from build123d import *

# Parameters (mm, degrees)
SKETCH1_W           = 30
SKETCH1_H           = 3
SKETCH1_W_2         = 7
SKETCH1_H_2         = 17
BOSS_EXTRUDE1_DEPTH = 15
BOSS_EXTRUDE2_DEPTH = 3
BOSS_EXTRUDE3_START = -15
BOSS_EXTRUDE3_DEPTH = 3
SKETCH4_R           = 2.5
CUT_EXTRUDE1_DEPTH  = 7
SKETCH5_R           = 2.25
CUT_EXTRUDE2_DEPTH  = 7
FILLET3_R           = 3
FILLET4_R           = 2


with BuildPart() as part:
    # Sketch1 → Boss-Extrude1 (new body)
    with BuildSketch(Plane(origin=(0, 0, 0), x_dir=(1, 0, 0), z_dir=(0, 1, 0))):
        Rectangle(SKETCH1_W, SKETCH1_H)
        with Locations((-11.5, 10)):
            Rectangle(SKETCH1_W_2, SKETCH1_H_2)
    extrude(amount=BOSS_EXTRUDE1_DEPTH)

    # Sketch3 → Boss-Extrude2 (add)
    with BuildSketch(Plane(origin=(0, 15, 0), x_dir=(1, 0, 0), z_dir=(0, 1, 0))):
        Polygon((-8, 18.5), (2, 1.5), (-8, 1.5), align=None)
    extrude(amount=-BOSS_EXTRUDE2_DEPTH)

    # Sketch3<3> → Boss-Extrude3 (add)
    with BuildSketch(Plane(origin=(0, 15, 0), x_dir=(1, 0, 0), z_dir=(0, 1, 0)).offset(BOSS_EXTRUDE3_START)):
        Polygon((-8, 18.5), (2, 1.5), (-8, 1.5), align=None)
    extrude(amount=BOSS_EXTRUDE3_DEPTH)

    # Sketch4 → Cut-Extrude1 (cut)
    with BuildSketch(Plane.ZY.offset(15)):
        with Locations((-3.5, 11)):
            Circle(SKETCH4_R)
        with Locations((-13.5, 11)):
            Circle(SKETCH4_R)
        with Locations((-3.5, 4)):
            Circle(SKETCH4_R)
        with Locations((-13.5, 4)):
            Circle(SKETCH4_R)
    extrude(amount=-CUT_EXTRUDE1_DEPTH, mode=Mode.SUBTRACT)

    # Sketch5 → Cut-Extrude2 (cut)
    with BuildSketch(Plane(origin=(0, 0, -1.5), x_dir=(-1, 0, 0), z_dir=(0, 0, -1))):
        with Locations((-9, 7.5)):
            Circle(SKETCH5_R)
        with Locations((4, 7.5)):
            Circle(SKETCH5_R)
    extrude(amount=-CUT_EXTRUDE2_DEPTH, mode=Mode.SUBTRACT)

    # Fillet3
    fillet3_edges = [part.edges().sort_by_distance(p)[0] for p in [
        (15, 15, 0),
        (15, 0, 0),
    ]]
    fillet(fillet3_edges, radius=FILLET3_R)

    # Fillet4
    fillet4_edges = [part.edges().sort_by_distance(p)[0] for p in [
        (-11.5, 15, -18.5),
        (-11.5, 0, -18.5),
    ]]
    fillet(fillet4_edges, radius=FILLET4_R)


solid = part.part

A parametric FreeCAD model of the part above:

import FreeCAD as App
import Part
import Sketcher
from FreeCAD import Vector
Q = App.Units.Quantity


def edges_at(feature, points):
    """Names of the edges that pass closest to the given points."""
    edges = feature.Shape.Edges
    near = lambda p: min(range(len(edges)), key=lambda i: edges[i].distToShape(Part.Vertex(*p))[0])
    return sorted({f"Edge{near(p) + 1}" for p in points})

doc = App.newDocument("Part")
body = doc.addObject("PartDesign::Body", "Body")

# Sketch on XZ plane
sketch1 = body.newObject("Sketcher::SketchObject", "Sketch")
sketch1.AttachmentSupport = (doc.getObject("XZ_Plane"), [""])
sketch1.MapMode = "FlatFace"
sketch1.addGeometry(Part.LineSegment(Vector(-15, 1.5, 0), Vector(15, 1.5, 0)), False)
sketch1.addGeometry(Part.LineSegment(Vector(15, 1.5, 0), Vector(15, -1.5, 0)), False)
sketch1.addGeometry(Part.LineSegment(Vector(15, -1.5, 0), Vector(-8, -1.5, 0)), False)
sketch1.addGeometry(Part.LineSegment(Vector(-8, -1.5, 0), Vector(-8, -18.5, 0)), False)
sketch1.addGeometry(Part.LineSegment(Vector(-8, -18.5, 0), Vector(-15, -18.5, 0)), False)
sketch1.addGeometry(Part.LineSegment(Vector(-15, -18.5, 0), Vector(-15, 1.5, 0)), False)
sketch1.addConstraint(Sketcher.Constraint("Coincident", 0, 2, 1, 1))
sketch1.addConstraint(Sketcher.Constraint("Coincident", 1, 2, 2, 1))
sketch1.addConstraint(Sketcher.Constraint("Coincident", 2, 2, 3, 1))
sketch1.addConstraint(Sketcher.Constraint("Coincident", 3, 2, 4, 1))
sketch1.addConstraint(Sketcher.Constraint("Coincident", 4, 2, 5, 1))
sketch1.addConstraint(Sketcher.Constraint("Coincident", 5, 2, 0, 1))
sketch1.addConstraint(Sketcher.Constraint("Horizontal", 0))
sketch1.addConstraint(Sketcher.Constraint("Vertical", 1))
sketch1.addConstraint(Sketcher.Constraint("Horizontal", 2))
sketch1.addConstraint(Sketcher.Constraint("Vertical", 3))
sketch1.addConstraint(Sketcher.Constraint("Horizontal", 4))
sketch1.addConstraint(Sketcher.Constraint("Vertical", 5))
sketch1.addConstraint(Sketcher.Constraint("Symmetric", 1, 2, 5, 2, -1, 1))
sketch1.addConstraint(Sketcher.Constraint("DistanceX", 0, 1, 0, 2, Q("30 mm")))
sketch1.addConstraint(Sketcher.Constraint("DistanceX", 2, 2, 2, 1, Q("23 mm")))
sketch1.addConstraint(Sketcher.Constraint("DistanceY", 1, 2, 1, 1, Q("3 mm")))
sketch1.addConstraint(Sketcher.Constraint("DistanceY", 3, 2, 3, 1, Q("17 mm")))
pad1 = body.newObject("PartDesign::Pad", "Pad")
pad1.Profile = sketch1
pad1.Length = 15
pad1.Reversed = True

# Sketch on XZ plane
sketch2 = body.newObject("Sketcher::SketchObject", "Sketch001")
sketch2.AttachmentSupport = (doc.getObject("XZ_Plane"), [""])
sketch2.MapMode = "FlatFace"
sketch2.AttachmentOffset = App.Placement(Vector(0, 0, -15), App.Rotation())
sketch2.addGeometry(Part.LineSegment(Vector(2, -2, 0), Vector(-8, -18, 0)), False)
sketch2.addGeometry(Part.LineSegment(Vector(-8, -18, 0), Vector(-8, -2, 0)), False)
sketch2.addGeometry(Part.LineSegment(Vector(-8, -2, 0), Vector(2, -2, 0)), False)
sketch2.addConstraint(Sketcher.Constraint("Coincident", 0, 2, 1, 1))
sketch2.addConstraint(Sketcher.Constraint("Coincident", 1, 2, 2, 1))
sketch2.addConstraint(Sketcher.Constraint("Coincident", 2, 2, 0, 1))
sketch2.addConstraint(Sketcher.Constraint("Vertical", 1))
sketch2.addConstraint(Sketcher.Constraint("Horizontal", 2))
sketch2.addConstraint(Sketcher.Constraint("DistanceX", 2, 1, 2, 2, Q("10 mm")))
sketch2.addConstraint(Sketcher.Constraint("DistanceY", 1, 1, 1, 2, Q("17 mm")))
sketch2.addConstraint(Sketcher.Constraint("DistanceX", 0, 2, -1, 1, Q("8 mm")))
sketch2.addConstraint(Sketcher.Constraint("DistanceY", 0, 2, -1, 1, Q("18.5 mm")))
pad2 = body.newObject("PartDesign::Pad", "Pad001")
pad2.Profile = sketch2
pad2.Length = 3

# Sketch on XZ plane
sketch3 = body.newObject("Sketcher::SketchObject", "Sketch002")
sketch3.AttachmentSupport = (doc.getObject("XZ_Plane"), [""])
sketch3.MapMode = "FlatFace"
sketch3.addGeometry(Part.LineSegment(Vector(2, -2, 0), Vector(-8, -18, 0)), False)
sketch3.addGeometry(Part.LineSegment(Vector(-8, -18, 0), Vector(-8, -2, 0)), False)
sketch3.addGeometry(Part.LineSegment(Vector(-8, -2, 0), Vector(2, -2, 0)), False)
sketch3.addConstraint(Sketcher.Constraint("Coincident", 0, 2, 1, 1))
sketch3.addConstraint(Sketcher.Constraint("Coincident", 1, 2, 2, 1))
sketch3.addConstraint(Sketcher.Constraint("Coincident", 2, 2, 0, 1))
sketch3.addConstraint(Sketcher.Constraint("Vertical", 1))
sketch3.addConstraint(Sketcher.Constraint("Horizontal", 2))
sketch3.addConstraint(Sketcher.Constraint("DistanceX", 2, 1, 2, 2, Q("10 mm")))
sketch3.addConstraint(Sketcher.Constraint("DistanceY", 1, 1, 1, 2, Q("17 mm")))
sketch3.addConstraint(Sketcher.Constraint("DistanceX", 0, 2, -1, 1, Q("8 mm")))
sketch3.addConstraint(Sketcher.Constraint("DistanceY", 0, 2, -1, 1, Q("18.5 mm")))
pad3 = body.newObject("PartDesign::Pad", "Pad002")
pad3.Profile = sketch3
pad3.Length = 3
pad3.Reversed = True

# Sketch on YZ plane
sketch4 = body.newObject("Sketcher::SketchObject", "Sketch003")
sketch4.AttachmentSupport = (doc.getObject("YZ_Plane"), [""])
sketch4.MapMode = "FlatFace"
sketch4.AttachmentOffset = App.Placement(Vector(0, 0, -15), App.Rotation())
sketch4.addGeometry(Part.Circle(Vector(11, -3.5, 0), Vector(0, 0, 1), 2.5), False)
sketch4.addGeometry(Part.Circle(Vector(11, -13.5, 0), Vector(0, 0, 1), 2.5), False)
sketch4.addGeometry(Part.Circle(Vector(4, -3.5, 0), Vector(0, 0, 1), 2.5), False)
sketch4.addGeometry(Part.Circle(Vector(4, -13.5, 0), Vector(0, 0, 1), 2.5), False)
sketch4.addConstraint(Sketcher.Constraint("Equal", 0, 1))
sketch4.addConstraint(Sketcher.Constraint("Equal", 1, 2))
sketch4.addConstraint(Sketcher.Constraint("Equal", 2, 3))
sketch4.addConstraint(Sketcher.Constraint("Horizontal", 0, 3, 2, 3))
sketch4.addConstraint(Sketcher.Constraint("Horizontal", 1, 3, 3, 3))
sketch4.addConstraint(Sketcher.Constraint("Vertical", 0, 3, 1, 3))
sketch4.addConstraint(Sketcher.Constraint("Vertical", 2, 3, 3, 3))
sketch4.addConstraint(Sketcher.Constraint("Diameter", 0, Q("5 mm")))
sketch4.addConstraint(Sketcher.Constraint("DistanceX", -1, 1, 0, 3, Q("11 mm")))
sketch4.addConstraint(Sketcher.Constraint("DistanceX", -1, 1, 2, 3, Q("4 mm")))
sketch4.addConstraint(Sketcher.Constraint("DistanceY", 1, 3, 0, 3, Q("10 mm")))
sketch4.addConstraint(Sketcher.Constraint("DistanceY", 0, 3, -1, 1, Q("3.5 mm")))
pocket1 = body.newObject("PartDesign::Pocket", "Pocket")
pocket1.Profile = sketch4
pocket1.Length = 7
pocket1.Reversed = True

# Sketch on XY plane
sketch5 = body.newObject("Sketcher::SketchObject", "Sketch004")
sketch5.AttachmentSupport = (doc.getObject("XY_Plane"), [""])
sketch5.MapMode = "FlatFace"
sketch5.AttachmentOffset = App.Placement(Vector(0, 0, -1.5), App.Rotation())
sketch5.addGeometry(Part.Circle(Vector(9, 7.5, 0), Vector(0, 0, 1), 2.2), False)
sketch5.addGeometry(Part.Circle(Vector(-4, 7.5, 0), Vector(0, 0, 1), 2.2), False)
sketch5.addConstraint(Sketcher.Constraint("Equal", 0, 1))
sketch5.addConstraint(Sketcher.Constraint("Horizontal", 0, 3, 1, 3))
sketch5.addConstraint(Sketcher.Constraint("Diameter", 0, Q("4.5 mm")))
sketch5.addConstraint(Sketcher.Constraint("DistanceX", -1, 1, 0, 3, Q("9 mm")))
sketch5.addConstraint(Sketcher.Constraint("DistanceX", 1, 3, -1, 1, Q("4 mm")))
sketch5.addConstraint(Sketcher.Constraint("DistanceY", -1, 1, 0, 3, Q("7.5 mm")))
pocket2 = body.newObject("PartDesign::Pocket", "Pocket001")
pocket2.Profile = sketch5
pocket2.Length = 7
pocket2.Reversed = True
doc.recompute()

fillet = body.newObject("PartDesign::Fillet", "Fillet")
fillet.Base = (pocket2, edges_at(pocket2, [(15, 15, 0), (15, 0, 0)]))
fillet.Radius = 3
doc.recompute()

fillet2 = body.newObject("PartDesign::Fillet", "Fillet001")
fillet2.Base = (fillet, edges_at(fillet, [(-11.5, 15, -18.5), (-11.5, 0, -18.5)]))
fillet2.Radius = 2

doc.recompute()
